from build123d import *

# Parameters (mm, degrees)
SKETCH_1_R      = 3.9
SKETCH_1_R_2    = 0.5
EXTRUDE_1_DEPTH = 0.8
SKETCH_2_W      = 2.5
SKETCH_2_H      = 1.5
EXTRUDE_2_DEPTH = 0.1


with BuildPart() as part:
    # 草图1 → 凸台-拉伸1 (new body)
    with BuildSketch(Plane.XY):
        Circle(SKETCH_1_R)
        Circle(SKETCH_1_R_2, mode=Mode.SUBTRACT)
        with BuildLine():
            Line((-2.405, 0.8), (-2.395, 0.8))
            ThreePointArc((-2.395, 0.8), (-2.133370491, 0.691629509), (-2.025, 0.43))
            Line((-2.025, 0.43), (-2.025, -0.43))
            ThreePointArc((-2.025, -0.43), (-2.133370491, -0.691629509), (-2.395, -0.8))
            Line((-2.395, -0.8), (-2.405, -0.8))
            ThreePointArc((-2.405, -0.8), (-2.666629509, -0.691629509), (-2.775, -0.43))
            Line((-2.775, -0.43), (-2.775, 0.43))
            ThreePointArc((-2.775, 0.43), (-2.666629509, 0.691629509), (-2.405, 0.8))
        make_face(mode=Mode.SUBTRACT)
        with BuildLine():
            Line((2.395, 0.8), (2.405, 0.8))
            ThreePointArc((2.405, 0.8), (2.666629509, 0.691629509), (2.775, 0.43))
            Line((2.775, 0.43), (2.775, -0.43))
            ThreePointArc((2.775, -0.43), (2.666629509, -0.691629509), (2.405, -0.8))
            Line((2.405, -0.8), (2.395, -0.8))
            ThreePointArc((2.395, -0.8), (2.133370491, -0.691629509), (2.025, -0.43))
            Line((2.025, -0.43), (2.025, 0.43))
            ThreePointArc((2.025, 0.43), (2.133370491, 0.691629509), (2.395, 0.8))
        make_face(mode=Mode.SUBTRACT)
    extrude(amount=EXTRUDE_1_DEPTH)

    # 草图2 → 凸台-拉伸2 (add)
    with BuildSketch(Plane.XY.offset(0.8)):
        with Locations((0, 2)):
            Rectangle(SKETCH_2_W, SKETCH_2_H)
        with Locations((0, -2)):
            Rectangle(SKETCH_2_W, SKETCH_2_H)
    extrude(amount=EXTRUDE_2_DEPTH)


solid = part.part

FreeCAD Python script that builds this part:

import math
import FreeCAD as App
import Part
import Sketcher
from FreeCAD import Vector


def add_polygon(sketch, points):
    """Adds a closed chain of lines whose ends are joined by coincident constraints."""
    first, n = sketch.GeometryCount, len(points)
    for a, b in zip(points, points[1:] + points[:1]):
        sketch.addGeometry(Part.LineSegment(App.Vector(*a, 0), App.Vector(*b, 0)), False)
    for i in range(n):
        sketch.addConstraint(Sketcher.Constraint("Coincident", first + i, 2, first + (i + 1) % n, 1))

doc = App.newDocument("Part")
body = doc.addObject("PartDesign::Body", "Body")

# Sketch on XY plane
sketch1 = body.newObject("Sketcher::SketchObject", "Sketch")
sketch1.AttachmentSupport = (doc.getObject("XY_Plane"), [""])
sketch1.MapMode = "FlatFace"
sketch1.addGeometry(Part.Circle(Vector(0, 0, 0), Vector(0, 0, 1), 3.9), False)
sketch1.addGeometry(Part.ArcOfCircle(Part.Circle(Vector(-2.405, 0.43, 0), Vector(0, 0, 1), 0.37), math.radians(90), math.radians(180)), False)
sketch1.addGeometry(Part.LineSegment(Vector(-2.405, 0.8, 0), Vector(-2.395, 0.8, 0)), False)
sketch1.addGeometry(Part.ArcOfCircle(Part.Circle(Vector(-2.395, 0.43, 0), Vector(0, 0, 1), 0.37), math.radians(0), math.radians(90)), False)
sketch1.addGeometry(Part.LineSegment(Vector(-2.025, 0.43, 0), Vector(-2.025, -0.43, 0)), False)
sketch1.addGeometry(Part.ArcOfCircle(Part.Circle(Vector(-2.395, -0.43, 0), Vector(0, 0, 1), 0.37), math.radians(-90), math.radians(0)), False)
sketch1.addGeometry(Part.LineSegment(Vector(-2.395, -0.8, 0), Vector(-2.405, -0.8, 0)), False)
sketch1.addGeometry(Part.ArcOfCircle(Part.Circle(Vector(-2.405, -0.43, 0), Vector(0, 0, 1), 0.37), math.radians(180), math.radians(270)), False)
sketch1.addGeometry(Part.LineSegment(Vector(-2.775, -0.43, 0), Vector(-2.775, 0.43, 0)), False)
sketch1.addGeometry(Part.Circle(Vector(0, 0, 0), Vector(0, 0, 1), 0.5), False)
sketch1.addGeometry(Part.ArcOfCircle(Part.Circle(Vector(2.395, 0.43, 0), Vector(0, 0, 1), 0.37), math.radians(90), math.radians(180)), False)
sketch1.addGeometry(Part.LineSegment(Vector(2.395, 0.8, 0), Vector(2.405, 0.8, 0)), False)
sketch1.addGeometry(Part.ArcOfCircle(Part.Circle(Vector(2.405, 0.43, 0), Vector(0, 0, 1), 0.37), math.radians(0), math.radians(90)), False)
sketch1.addGeometry(Part.LineSegment(Vector(2.775, 0.43, 0), Vector(2.775, -0.43, 0)), False)
sketch1.addGeometry(Part.ArcOfCircle(Part.Circle(Vector(2.405, -0.43, 0), Vector(0, 0, 1), 0.37), math.radians(-90), math.radians(0)), False)
sketch1.addGeometry(Part.LineSegment(Vector(2.405, -0.8, 0), Vector(2.395, -0.8, 0)), False)
sketch1.addGeometry(Part.ArcOfCircle(Part.Circle(Vector(2.395, -0.43, 0), Vector(0, 0, 1), 0.37), math.radians(180), math.radians(270)), False)
sketch1.addGeometry(Part.LineSegment(Vector(2.025, -0.43, 0), Vector(2.025, 0.43, 0)), False)
sketch1.addConstraint(Sketcher.Constraint("Tangent", 1, 1, 2, 1))
sketch1.addConstraint(Sketcher.Constraint("Tangent", 2, 2, 3, 2))
sketch1.addConstraint(Sketcher.Constraint("Tangent", 3, 1, 4, 1))
sketch1.addConstraint(Sketcher.Constraint("Tangent", 4, 2, 5, 2))
sketch1.addConstraint(Sketcher.Constraint("Tangent", 5, 1, 6, 1))
sketch1.addConstraint(Sketcher.Constraint("Tangent", 6, 2, 7, 2))
sketch1.addConstraint(Sketcher.Constraint("Tangent", 7, 1, 8, 1))
sketch1.addConstraint(Sketcher.Constraint("Tangent", 8, 2, 1, 2))
sketch1.addConstraint(Sketcher.Constraint("Tangent", 10, 1, 11, 1))
sketch1.addConstraint(Sketcher.Constraint("Tangent", 11, 2, 12, 2))
sketch1.addConstraint(Sketcher.Constraint("Tangent", 12, 1, 13, 1))
sketch1.addConstraint(Sketcher.Constraint("Tangent", 13, 2, 14, 2))
sketch1.addConstraint(Sketcher.Constraint("Tangent", 14, 1, 15, 1))
sketch1.addConstraint(Sketcher.Constraint("Tangent", 15, 2, 16, 2))
sketch1.addConstraint(Sketcher.Constraint("Tangent", 16, 1, 17, 1))
sketch1.addConstraint(Sketcher.Constraint("Tangent", 17, 2, 10, 2))
sketch1.addConstraint(Sketcher.Constraint("Horizontal", 2))
sketch1.addConstraint(Sketcher.Constraint("Vertical", 4))
sketch1.addConstraint(Sketcher.Constraint("Horizontal", 6))
sketch1.addConstraint(Sketcher.Constraint("Vertical", 8))
sketch1.addConstraint(Sketcher.Constraint("Horizontal", 11))
sketch1.addConstraint(Sketcher.Constraint("Vertical", 13))
sketch1.addConstraint(Sketcher.Constraint("Horizontal", 15))
sketch1.addConstraint(Sketcher.Constraint("Vertical", 17))
sketch1.addConstraint(Sketcher.Constraint("Coincident", 0, 3, -1, 1))
sketch1.addConstraint(Sketcher.Constraint("Coincident", 9, 3, -1, 1))
sketch1.addConstraint(Sketcher.Constraint("Equal", 1, 3))
sketch1.addConstraint(Sketcher.Constraint("Equal", 3, 5))
sketch1.addConstraint(Sketcher.Constraint("Equal", 5, 7))
sketch1.addConstraint(Sketcher.Constraint("Equal", 7, 10))
sketch1.addConstraint(Sketcher.Constraint("Equal", 10, 12))
sketch1.addConstraint(Sketcher.Constraint("Equal", 12, 14))
sketch1.addConstraint(Sketcher.Constraint("Equal", 14, 16))
sketch1.addConstraint(Sketcher.Constraint("Symmetric", 5, 3, 10, 3, -1, 1))
sketch1.addConstraint(Sketcher.Constraint("Symmetric", 1, 3, 14, 3, -1, 1))
sketch1.addConstraint(Sketcher.Constraint("Horizontal", 3, 3, 10, 3))
sketch1.addConstraint(Sketcher.Constraint("Diameter", 9, 1.0))
sketch1.addConstraint(Sketcher.Constraint("Diameter", 0, 7.8))
sketch1.addConstraint(Sketcher.Constraint("Radius", 1, 0.37))
sketch1.addConstraint(Sketcher.Constraint("DistanceX", 2, 1, 2, 2, 0.01))
sketch1.addConstraint(Sketcher.Constraint("DistanceY", 4, 2, 4, 1, 0.86))
sketch1.addConstraint(Sketcher.Constraint("DistanceX", 1, 3, 10, 3, 4.8))
pad1 = body.newObject("PartDesign::Pad", "Pad")
pad1.Profile = sketch1
pad1.Length = 0.8

# Sketch on XY plane
sketch2 = body.newObject("Sketcher::SketchObject", "Sketch001")
sketch2.AttachmentSupport = (doc.getObject("XY_Plane"), [""])
sketch2.MapMode = "FlatFace"
sketch2.AttachmentOffset = App.Placement(Vector(0, 0, 0.8), App.Rotation())
add_polygon(sketch2, [(-1.2, 2.8), (-1.2, 1.2), (1.2, 1.2), (1.2, 2.8)])  # lines 0-3
add_polygon(sketch2, [(-1.2, -1.2), (-1.2, -2.8), (1.2, -2.8), (1.2, -1.2)])  # lines 4-7
sketch2.addConstraint(Sketcher.Constraint("Vertical", 0))
sketch2.addConstraint(Sketcher.Constraint("Horizontal", 1))
sketch2.addConstraint(Sketcher.Constraint("Vertical", 2))
sketch2.addConstraint(Sketcher.Constraint("Horizontal", 3))
sketch2.addConstraint(Sketcher.Constraint("Vertical", 4))
sketch2.addConstraint(Sketcher.Constraint("Horizontal", 5))
sketch2.addConstraint(Sketcher.Constraint("Vertical", 6))
sketch2.addConstraint(Sketcher.Constraint("Horizontal", 7))
sketch2.addConstraint(Sketcher.Constraint("Symmetric", 2, 2, 4, 2, -1, 1))
sketch2.addConstraint(Sketcher.Constraint("Symmetric", 0, 2, 6, 2, -1, 1))
sketch2.addConstraint(Sketcher.Constraint("Vertical", 3, 2, 4, 2))
sketch2.addConstraint(Sketcher.Constraint("DistanceX", 1, 1, 1, 2, 2.5))
sketch2.addConstraint(Sketcher.Constraint("DistanceY", 0, 2, 0, 1, 1.5))
sketch2.addConstraint(Sketcher.Constraint("DistanceY", 4, 2, 0, 2, 4.0))
pad2 = body.newObject("PartDesign::Pad", "Pad001")
pad2.Profile = sketch2
pad2.Length = 0.1

doc.recompute()
